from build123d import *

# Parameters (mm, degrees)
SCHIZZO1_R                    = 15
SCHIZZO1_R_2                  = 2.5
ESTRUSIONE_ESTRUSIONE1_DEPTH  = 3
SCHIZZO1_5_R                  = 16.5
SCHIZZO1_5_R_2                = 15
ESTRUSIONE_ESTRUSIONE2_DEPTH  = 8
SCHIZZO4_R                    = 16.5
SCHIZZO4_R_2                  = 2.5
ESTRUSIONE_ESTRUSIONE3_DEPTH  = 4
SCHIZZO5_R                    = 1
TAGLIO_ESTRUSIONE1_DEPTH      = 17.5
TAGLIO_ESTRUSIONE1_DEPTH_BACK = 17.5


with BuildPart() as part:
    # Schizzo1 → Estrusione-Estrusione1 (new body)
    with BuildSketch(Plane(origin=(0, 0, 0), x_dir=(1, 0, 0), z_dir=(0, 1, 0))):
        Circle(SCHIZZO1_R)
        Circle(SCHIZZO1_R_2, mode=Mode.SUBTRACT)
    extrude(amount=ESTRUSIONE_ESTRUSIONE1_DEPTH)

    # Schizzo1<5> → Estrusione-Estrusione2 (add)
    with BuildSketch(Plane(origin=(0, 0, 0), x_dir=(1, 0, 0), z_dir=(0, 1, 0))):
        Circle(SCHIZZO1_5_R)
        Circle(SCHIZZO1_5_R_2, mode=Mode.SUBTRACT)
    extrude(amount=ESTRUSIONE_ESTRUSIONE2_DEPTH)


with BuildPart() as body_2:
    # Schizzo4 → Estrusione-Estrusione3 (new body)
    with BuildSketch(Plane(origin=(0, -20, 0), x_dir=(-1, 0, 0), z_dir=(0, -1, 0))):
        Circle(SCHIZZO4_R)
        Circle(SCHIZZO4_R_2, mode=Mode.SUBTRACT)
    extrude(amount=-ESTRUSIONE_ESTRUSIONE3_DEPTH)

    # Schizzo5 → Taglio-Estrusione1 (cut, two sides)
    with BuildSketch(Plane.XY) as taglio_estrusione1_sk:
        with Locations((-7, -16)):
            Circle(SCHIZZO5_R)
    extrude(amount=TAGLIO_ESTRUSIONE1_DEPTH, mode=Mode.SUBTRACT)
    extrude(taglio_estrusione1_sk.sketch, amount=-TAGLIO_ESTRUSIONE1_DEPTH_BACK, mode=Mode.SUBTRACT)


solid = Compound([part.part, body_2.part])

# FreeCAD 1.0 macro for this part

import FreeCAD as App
import Part
import Sketcher
from FreeCAD import Vector

doc = App.newDocument("Part")
body = doc.addObject("PartDesign::Body", "Body")

# Sketch on XZ plane
sketch1 = body.newObject("Sketcher::SketchObject", "Sketch")
sketch1.AttachmentSupport = (doc.getObject("XZ_Plane"), [""])
sketch1.MapMode = "FlatFace"
sketch1.addGeometry(Part.Circle(Vector(0, 0, 0), Vector(0, 0, 1), 15), False)
sketch1.addGeometry(Part.Circle(Vector(0, 0, 0), Vector(0, 0, 1), 2.5), False)
sketch1.addConstraint(Sketcher.Constraint("Coincident", 0, 3, -1, 1))
sketch1.addConstraint(Sketcher.Constraint("Coincident", 1, 3, -1, 1))
sketch1.addConstraint(Sketcher.Constraint("Diameter", 0, 30.0))
sketch1.addConstraint(Sketcher.Constraint("Diameter", 1, 5.0))
pad1 = body.newObject("PartDesign::Pad", "Pad")
pad1.Profile = sketch1
pad1.Length = 3
pad1.Reversed = True

# Sketch on XZ plane
sketch2 = body.newObject("Sketcher::SketchObject", "Sketch001")
sketch2.AttachmentSupport = (doc.getObject("XZ_Plane"), [""])
sketch2.MapMode = "FlatFace"
sketch2.addGeometry(Part.Circle(Vector(0, 0, 0), Vector(0, 0, 1), 16), False)
sketch2.addGeometry(Part.Circle(Vector(0, 0, 0), Vector(0, 0, 1), 15), False)
sketch2.addConstraint(Sketcher.Constraint("Coincident", 0, 3, -1, 1))
sketch2.addConstraint(Sketcher.Constraint("Coincident", 1, 3, -1, 1))
sketch2.addConstraint(Sketcher.Constraint("Diameter", 0, 33.0))
sketch2.addConstraint(Sketcher.Constraint("Diameter", 1, 30.0))
pad2 = body.newObject("PartDesign::Pad", "Pad001")
pad2.Profile = sketch2
pad2.Length = 8
pad2.Reversed = True
body2 = doc.addObject("PartDesign::Body", "Body001")

# Sketch on XZ plane
sketch3 = body2.newObject("Sketcher::SketchObject", "Sketch002")
sketch3.AttachmentSupport = (doc.getObject("XZ_Plane001"), [""])
sketch3.MapMode = "FlatFace"
sketch3.AttachmentOffset = App.Placement(Vector(0, 0, 20), App.Rotation())
sketch3.addGeometry(Part.Circle(Vector(0, 0, 0), Vector(0, 0, 1), 16.5), False)
sketch3.addGeometry(Part.Circle(Vector(0, 0, 0), Vector(0, 0, 1), 2.5), False)
sketch3.addConstraint(Sketcher.Constraint("Coincident", 0, 3, -1, 1))
sketch3.addConstraint(Sketcher.Constraint("Coincident", 1, 3, -1, 1))
sketch3.addConstraint(Sketcher.Constraint("Diameter", 0, 33.0))
sketch3.addConstraint(Sketcher.Constraint("Diameter", 1, 5.0))
pad3 = body2.newObject("PartDesign::Pad", "Pad002")
pad3.Profile = sketch3
pad3.Length = 4
pad3.Reversed = True

# Sketch on XY plane
sketch4 = body2.newObject("Sketcher::SketchObject", "Sketch003")
sketch4.AttachmentSupport = (doc.getObject("XY_Plane001"), [""])
sketch4.MapMode = "FlatFace"
sketch4.addGeometry(Part.Circle(Vector(-7, -16, 0), Vector(0, 0, 1), 1), False)
sketch4.addConstraint(Sketcher.Constraint("Diameter", 0, 2.0))
sketch4.addConstraint(Sketcher.Constraint("DistanceX", 0, 3, -1, 1, 7.0))
sketch4.addConstraint(Sketcher.Constraint("DistanceY", 0, 3, -1, 1, 16.0))
pocket1 = body2.newObject("PartDesign::Pocket", "Pocket")
pocket1.Profile = sketch4
pocket1.Type = "ThroughAll"
pocket1.Midplane = True

doc.recompute()
